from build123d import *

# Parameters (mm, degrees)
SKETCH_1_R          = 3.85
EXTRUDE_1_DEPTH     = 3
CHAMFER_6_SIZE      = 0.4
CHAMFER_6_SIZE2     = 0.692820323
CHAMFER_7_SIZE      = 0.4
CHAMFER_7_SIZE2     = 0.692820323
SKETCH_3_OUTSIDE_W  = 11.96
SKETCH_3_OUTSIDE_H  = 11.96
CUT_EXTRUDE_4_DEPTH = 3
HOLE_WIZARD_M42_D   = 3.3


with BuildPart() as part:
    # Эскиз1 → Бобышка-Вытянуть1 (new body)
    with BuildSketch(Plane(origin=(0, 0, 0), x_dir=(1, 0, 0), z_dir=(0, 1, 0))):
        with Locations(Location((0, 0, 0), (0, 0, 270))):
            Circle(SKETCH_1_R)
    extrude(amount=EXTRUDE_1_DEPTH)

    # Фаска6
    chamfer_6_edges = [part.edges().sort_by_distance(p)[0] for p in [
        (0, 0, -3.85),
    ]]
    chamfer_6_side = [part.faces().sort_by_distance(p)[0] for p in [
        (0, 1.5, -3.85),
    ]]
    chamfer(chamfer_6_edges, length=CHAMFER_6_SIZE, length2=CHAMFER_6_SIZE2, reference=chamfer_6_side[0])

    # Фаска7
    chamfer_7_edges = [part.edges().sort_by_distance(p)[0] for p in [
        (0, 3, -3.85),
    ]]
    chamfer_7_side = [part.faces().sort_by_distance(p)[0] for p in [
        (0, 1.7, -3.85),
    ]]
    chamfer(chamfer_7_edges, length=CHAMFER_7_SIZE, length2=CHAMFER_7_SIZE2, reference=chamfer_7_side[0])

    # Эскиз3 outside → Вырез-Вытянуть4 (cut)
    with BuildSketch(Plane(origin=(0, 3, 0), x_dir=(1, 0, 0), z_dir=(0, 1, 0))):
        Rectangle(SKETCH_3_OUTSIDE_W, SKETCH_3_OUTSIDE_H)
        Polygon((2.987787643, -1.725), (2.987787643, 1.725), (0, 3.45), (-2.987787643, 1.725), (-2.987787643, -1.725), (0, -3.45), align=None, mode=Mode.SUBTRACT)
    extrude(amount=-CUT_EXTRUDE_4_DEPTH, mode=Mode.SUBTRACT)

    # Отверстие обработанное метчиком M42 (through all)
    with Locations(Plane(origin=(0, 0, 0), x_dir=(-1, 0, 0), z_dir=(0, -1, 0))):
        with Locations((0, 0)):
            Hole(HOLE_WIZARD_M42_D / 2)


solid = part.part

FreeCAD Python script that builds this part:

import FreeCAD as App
import Part
import Sketcher

V = App.Vector
Q = App.Units.Quantity


def edges_at(feature, points):
    """Names of the edges that pass closest to the given points."""
    edges = feature.Shape.Edges
    near = lambda p: min(range(len(edges)), key=lambda i: edges[i].distToShape(Part.Vertex(*p))[0])
    return sorted({f"Edge{near(p) + 1}" for p in points})


def add_polygon(sketch, points):
    """Adds a closed chain of lines whose ends are joined by coincident constraints."""
    first, n = sketch.GeometryCount, len(points)
    for a, b in zip(points, points[1:] + points[:1]):
        sketch.addGeometry(Part.LineSegment(App.Vector(*a, 0), App.Vector(*b, 0)), False)
    for i in range(n):
        sketch.addConstraint(Sketcher.Constraint("Coincident", first + i, 2, first + (i + 1) % n, 1))

doc = App.newDocument("Part")
body = doc.addObject("PartDesign::Body", "Body")

# Sketch on XZ plane
sketch1 = body.newObject("Sketcher::SketchObject", "Sketch")
sketch1.AttachmentSupport = (doc.getObject("XZ_Plane"), [""])
sketch1.MapMode = "FlatFace"
sketch1.addGeometry(Part.Circle(V(0, 0, 0), V(0, 0, 1), 3.85), False)
sketch1.addConstraint(Sketcher.Constraint("Coincident", 0, 3, -1, 1))
sketch1.addConstraint(Sketcher.Constraint("Diameter", 0, 7.7))
pad1 = body.newObject("PartDesign::Pad", "Pad")
pad1.Profile = sketch1
pad1.Length = 3
pad1.Reversed = True
doc.recompute()

chamfer = body.newObject("PartDesign::Chamfer", "Chamfer")
chamfer.Base = (pad1, edges_at(pad1, [(0, 0, -3.85)]))
chamfer.ChamferType = "Two distances"
chamfer.Size = 0.4
chamfer.Size2 = 0.69282
doc.recompute()

chamfer2 = body.newObject("PartDesign::Chamfer", "Chamfer001")
chamfer2.Base = (chamfer, edges_at(chamfer, [(0, 3, -3.85)]))
chamfer2.ChamferType = "Two distances"
chamfer2.Size = 0.4
chamfer2.Size2 = 0.69282

# Sketch on XZ plane
sketch2 = body.newObject("Sketcher::SketchObject", "Sketch001")
sketch2.AttachmentSupport = (doc.getObject("XZ_Plane"), [""])
sketch2.MapMode = "FlatFace"
sketch2.AttachmentOffset = App.Placement(V(0, 0, -3), App.Rotation())
add_polygon(sketch2, [(-5.98, -5.98), (-5.98, 5.98), (5.98, 5.98), (5.98, -5.98)])  # lines 0-3
add_polygon(sketch2, [(2.987788, -1.725), (2.987788, 1.725), (0, 3.45), (-2.987788, 1.725), (-2.987788, -1.725), (0, -3.45)])  # lines 4-9
sketch2.addConstraint(Sketcher.Constraint("Vertical", 0))
sketch2.addConstraint(Sketcher.Constraint("Horizontal", 1))
sketch2.addConstraint(Sketcher.Constraint("Vertical", 2))
sketch2.addConstraint(Sketcher.Constraint("Horizontal", 3))
sketch2.addConstraint(Sketcher.Constraint("Vertical", 4))
sketch2.addConstraint(Sketcher.Constraint("Vertical", 7))
sketch2.addConstraint(Sketcher.Constraint("Symmetric", 0, 2, 2, 2, -1, 1))
sketch2.addConstraint(Sketcher.Constraint("Symmetric", 4, 2, 7, 2, -1, 1))
sketch2.addConstraint(Sketcher.Constraint("Symmetric", 5, 2, 8, 2, -1, 1))
sketch2.addConstraint(Sketcher.Constraint("PointOnObject", 5, 2, -2))
sketch2.addConstraint(Sketcher.Constraint("Parallel", 6, 9))
sketch2.addConstraint(Sketcher.Constraint("Horizontal", 4, 2, 6, 2))
sketch2.addConstraint(Sketcher.Constraint("Equal", 3, 0))
sketch2.addConstraint(Sketcher.Constraint("Angle", 5, Q("150 deg")))
sketch2.addConstraint(Sketcher.Constraint("DistanceX", 1, 1, 1, 2, 11.96))
sketch2.addConstraint(Sketcher.Constraint("DistanceY", 4, 1, 4, 2, 3.45))
sketch2.addConstraint(Sketcher.Constraint("Distance", 5, 3.45))
pocket1 = body.newObject("PartDesign::Pocket", "Pocket")
pocket1.Profile = sketch2
pocket1.Length = 3
pocket1.Reversed = True

# Sketch on XZ plane
sketch3 = body.newObject("Sketcher::SketchObject", "Sketch002")
sketch3.AttachmentSupport = (doc.getObject("XZ_Plane"), [""])
sketch3.MapMode = "FlatFace"
sketch3.addGeometry(Part.Circle(V(0, 0, 0), V(0, 0, 1), 1.65), False)
sketch3.addConstraint(Sketcher.Constraint("Coincident", 0, 3, -1, 1))
sketch3.addConstraint(Sketcher.Constraint("Diameter", 0, 3.3))
doc.recompute()
hole = body.newObject("PartDesign::Hole", "Hole")
hole.Profile = sketch3
hole.ThreadType = "None"
hole.Diameter = 3.3
hole.DepthType = "ThroughAll"

doc.recompute()
